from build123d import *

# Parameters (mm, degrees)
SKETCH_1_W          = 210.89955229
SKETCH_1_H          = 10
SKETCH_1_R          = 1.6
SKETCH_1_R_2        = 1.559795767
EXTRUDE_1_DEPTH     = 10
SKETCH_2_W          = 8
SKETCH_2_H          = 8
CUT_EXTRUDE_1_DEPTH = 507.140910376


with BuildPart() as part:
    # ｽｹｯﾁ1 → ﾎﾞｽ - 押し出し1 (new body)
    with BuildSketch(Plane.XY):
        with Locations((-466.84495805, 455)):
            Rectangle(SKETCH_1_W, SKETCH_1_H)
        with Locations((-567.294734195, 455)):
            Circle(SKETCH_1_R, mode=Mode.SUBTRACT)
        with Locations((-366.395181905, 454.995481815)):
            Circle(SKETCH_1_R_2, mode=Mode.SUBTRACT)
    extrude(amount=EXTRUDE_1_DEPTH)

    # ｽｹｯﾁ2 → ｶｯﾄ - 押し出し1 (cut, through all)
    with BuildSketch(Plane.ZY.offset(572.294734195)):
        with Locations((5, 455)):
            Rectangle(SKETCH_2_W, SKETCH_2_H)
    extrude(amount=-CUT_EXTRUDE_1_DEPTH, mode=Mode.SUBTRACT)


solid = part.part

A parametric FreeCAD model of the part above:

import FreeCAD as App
import Part
import Sketcher
from FreeCAD import Vector
Q = App.Units.Quantity


def add_polygon(sketch, points):
    """Adds a closed chain of lines whose ends are joined by coincident constraints."""
    first, n = sketch.GeometryCount, len(points)
    for a, b in zip(points, points[1:] + points[:1]):
        sketch.addGeometry(Part.LineSegment(App.Vector(*a, 0), App.Vector(*b, 0)), False)
    for i in range(n):
        sketch.addConstraint(Sketcher.Constraint("Coincident", first + i, 2, first + (i + 1) % n, 1))

doc = App.newDocument("Part")
params = doc.addObject("Spreadsheet::Sheet", "Params")
for row, (alias, value) in enumerate([
    ("sketch1_diameter", "3.2 mm"),
    ("sketch1_height", "10 mm"),
    ("pad1_length", "10 mm"),
    ("sketch2_width", "8 mm"),
], start=1):
    params.set(f"A{row}", alias)
    params.set(f"B{row}", "=" + value)
    params.setAlias(f"B{row}", alias)

body = doc.addObject("PartDesign::Body", "Body")

# Sketch on XY plane
sketch1 = body.newObject("Sketcher::SketchObject", "Sketch")
sketch1.AttachmentSupport = (doc.getObject("XY_Plane"), [""])
sketch1.MapMode = "FlatFace"
add_polygon(sketch1, [(-572.3, 460), (-572.3, 450), (-361.4, 450), (-361.4, 460)])  # lines 0-3
sketch1.addGeometry(Part.Circle(Vector(-366.4, 455, 0), Vector(0, 0, 1), 1.6), False)  # 4
sketch1.addGeometry(Part.Circle(Vector(-567.3, 455, 0), Vector(0, 0, 1), 1.6), False)  # 5
sketch1.addConstraint(Sketcher.Constraint("Vertical", 0))
sketch1.addConstraint(Sketcher.Constraint("Horizontal", 1))
sketch1.addConstraint(Sketcher.Constraint("Vertical", 2))
sketch1.addConstraint(Sketcher.Constraint("Horizontal", 3))
sketch1.addConstraint(Sketcher.Constraint("Diameter", 5, Q("3.2 mm")))
sketch1.addConstraint(Sketcher.Constraint("DistanceY", 0, 2, 0, 1, Q("10 mm")))
sketch1.addConstraint(Sketcher.Constraint("DistanceY", -1, 1, 5, 3, Q("455 mm")))
sketch1.addConstraint(Sketcher.Constraint("DistanceY", -1, 1, 0, 2, Q("450 mm")))
sketch1.addConstraint(Sketcher.Constraint("DistanceX", 0, 2, 5, 3, Q("5 mm")))
sketch1.addConstraint(Sketcher.Constraint("DistanceX", 4, 3, 1, 2, Q("5 mm")))
sketch1.addConstraint(Sketcher.Constraint("Diameter", 4, Q("3.119592 mm")))
sketch1.addConstraint(Sketcher.Constraint("DistanceX", 1, 1, 1, 2, Q("210.899552 mm")))
sketch1.addConstraint(Sketcher.Constraint("DistanceX", 4, 3, -1, 1, Q("366.395182 mm")))
sketch1.addConstraint(Sketcher.Constraint("DistanceY", -1, 1, 4, 3, Q("454.995482 mm")))
sketch1.setExpression("Constraints[8]", "Params.sketch1_diameter")
sketch1.setExpression("Constraints[9]", "Params.sketch1_height")
pad1 = body.newObject("PartDesign::Pad", "Pad")
pad1.Profile = sketch1
pad1.setExpression("Length", "Params.pad1_length")

# Sketch on YZ plane
sketch2 = body.newObject("Sketcher::SketchObject", "Sketch001")
sketch2.AttachmentSupport = (doc.getObject("YZ_Plane"), [""])
sketch2.MapMode = "FlatFace"
sketch2.AttachmentOffset = App.Placement(Vector(0, 0, -572.294734), App.Rotation())
add_polygon(sketch2, [(459, 1), (451, 1), (451, 9), (459, 9)])  # lines 0-3
sketch2.addConstraint(Sketcher.Constraint("Horizontal", 0))
sketch2.addConstraint(Sketcher.Constraint("Vertical", 1))
sketch2.addConstraint(Sketcher.Constraint("Horizontal", 2))
sketch2.addConstraint(Sketcher.Constraint("Vertical", 3))
sketch2.addConstraint(Sketcher.Constraint("Equal", 2, 1))
sketch2.addConstraint(Sketcher.Constraint("DistanceX", 0, 2, 0, 1, Q("8 mm")))
sketch2.addConstraint(Sketcher.Constraint("DistanceX", -1, 1, 0, 2, Q("451 mm")))
sketch2.addConstraint(Sketcher.Constraint("DistanceY", -1, 1, 0, 2, Q("1 mm")))
sketch2.setExpression("Constraints[9]", "Params.sketch2_width")
pocket1 = body.newObject("PartDesign::Pocket", "Pocket")
pocket1.Profile = sketch2
pocket1.Type = "ThroughAll"
pocket1.Reversed = True

doc.recompute()
